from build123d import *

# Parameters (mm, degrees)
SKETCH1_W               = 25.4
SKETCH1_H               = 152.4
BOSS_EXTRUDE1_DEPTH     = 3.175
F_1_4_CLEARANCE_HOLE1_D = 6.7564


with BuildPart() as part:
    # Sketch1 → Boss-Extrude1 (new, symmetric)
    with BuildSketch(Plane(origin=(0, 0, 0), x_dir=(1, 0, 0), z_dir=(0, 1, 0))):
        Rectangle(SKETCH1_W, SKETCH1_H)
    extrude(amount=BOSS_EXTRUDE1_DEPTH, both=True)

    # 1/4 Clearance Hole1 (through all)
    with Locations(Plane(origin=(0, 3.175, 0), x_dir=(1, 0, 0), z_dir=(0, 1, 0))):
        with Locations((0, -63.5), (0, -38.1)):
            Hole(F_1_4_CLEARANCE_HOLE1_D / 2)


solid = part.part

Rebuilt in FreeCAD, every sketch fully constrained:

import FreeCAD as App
import Part
import Sketcher
from FreeCAD import Vector
Q = App.Units.Quantity

doc = App.newDocument("Part")
body = doc.addObject("PartDesign::Body", "Body")

# Sketch on XZ plane
sketch1 = doc.addObject("Sketcher::SketchObject", "Sketch")
body.addObject(sketch1)
sketch1.AttachmentSupport = (doc.XZ_Plane, [""])
sketch1.MapMode = "FlatFace"
sketch1.addGeometry([
    Part.LineSegment(Vector(-13, -76, 0), Vector(-13, 76, 0)),
    Part.LineSegment(Vector(-13, 76, 0), Vector(13, 76, 0)),
    Part.LineSegment(Vector(13, 76, 0), Vector(13, -76, 0)),
    Part.LineSegment(Vector(13, -76, 0), Vector(-13, -76, 0)),
], False)
sketch1.addConstraint([
    Sketcher.Constraint("Coincident", 0, 2, 1, 1),
    Sketcher.Constraint("Coincident", 1, 2, 2, 1),
    Sketcher.Constraint("Coincident", 2, 2, 3, 1),
    Sketcher.Constraint("Coincident", 3, 2, 0, 1),
    Sketcher.Constraint("Vertical", 0),
    Sketcher.Constraint("Horizontal", 1),
    Sketcher.Constraint("Vertical", 2),
    Sketcher.Constraint("Horizontal", 3),
    Sketcher.Constraint("Symmetric", 0, 2, 2, 2, -1, 1),
    Sketcher.Constraint("DistanceX", 1, 1, 1, 2, Q("1 in")),
    Sketcher.Constraint("DistanceY", 0, 1, 0, 2, Q("6 in")),
])
pad1 = doc.addObject("PartDesign::Pad", "Pad")
body.addObject(pad1)
pad1.Profile = sketch1
pad1.Length = Q("0.25 in")
pad1.Midplane = True

# Sketch on XZ plane
sketch2 = doc.addObject("Sketcher::SketchObject", "Sketch001")
body.addObject(sketch2)
sketch2.AttachmentSupport = (doc.XZ_Plane, [""])
sketch2.MapMode = "FlatFace"
sketch2.AttachmentOffset = App.Placement(Vector(0, 0, -0.125 * 25.4), App.Rotation())
sketch2.addGeometry([
    Part.Circle(Vector(0, 63.5, 0), Vector(0, 0, 1), 3.4),
    Part.Circle(Vector(0, 38.1, 0), Vector(0, 0, 1), 3.4),
], False)
sketch2.addConstraint([
    Sketcher.Constraint("Equal", 0, 1),
    Sketcher.Constraint("PointOnObject", 0, 3, -2),
    Sketcher.Constraint("PointOnObject", 1, 3, -2),
    Sketcher.Constraint("Diameter", 0, Q("0.266 in")),
    Sketcher.Constraint("DistanceY", 1, 3, 0, 3, Q("1 in")),
    Sketcher.Constraint("DistanceY", -1, 1, 0, 3, Q("2.5 in")),
])
doc.recompute()
hole = doc.addObject("PartDesign::Hole", "Hole")
body.addObject(hole)
hole.Profile = sketch2
hole.ThreadType = "None"
hole.Diameter = Q("0.266 in")
hole.DepthType = "ThroughAll"
hole.Reversed = True

doc.recompute()
